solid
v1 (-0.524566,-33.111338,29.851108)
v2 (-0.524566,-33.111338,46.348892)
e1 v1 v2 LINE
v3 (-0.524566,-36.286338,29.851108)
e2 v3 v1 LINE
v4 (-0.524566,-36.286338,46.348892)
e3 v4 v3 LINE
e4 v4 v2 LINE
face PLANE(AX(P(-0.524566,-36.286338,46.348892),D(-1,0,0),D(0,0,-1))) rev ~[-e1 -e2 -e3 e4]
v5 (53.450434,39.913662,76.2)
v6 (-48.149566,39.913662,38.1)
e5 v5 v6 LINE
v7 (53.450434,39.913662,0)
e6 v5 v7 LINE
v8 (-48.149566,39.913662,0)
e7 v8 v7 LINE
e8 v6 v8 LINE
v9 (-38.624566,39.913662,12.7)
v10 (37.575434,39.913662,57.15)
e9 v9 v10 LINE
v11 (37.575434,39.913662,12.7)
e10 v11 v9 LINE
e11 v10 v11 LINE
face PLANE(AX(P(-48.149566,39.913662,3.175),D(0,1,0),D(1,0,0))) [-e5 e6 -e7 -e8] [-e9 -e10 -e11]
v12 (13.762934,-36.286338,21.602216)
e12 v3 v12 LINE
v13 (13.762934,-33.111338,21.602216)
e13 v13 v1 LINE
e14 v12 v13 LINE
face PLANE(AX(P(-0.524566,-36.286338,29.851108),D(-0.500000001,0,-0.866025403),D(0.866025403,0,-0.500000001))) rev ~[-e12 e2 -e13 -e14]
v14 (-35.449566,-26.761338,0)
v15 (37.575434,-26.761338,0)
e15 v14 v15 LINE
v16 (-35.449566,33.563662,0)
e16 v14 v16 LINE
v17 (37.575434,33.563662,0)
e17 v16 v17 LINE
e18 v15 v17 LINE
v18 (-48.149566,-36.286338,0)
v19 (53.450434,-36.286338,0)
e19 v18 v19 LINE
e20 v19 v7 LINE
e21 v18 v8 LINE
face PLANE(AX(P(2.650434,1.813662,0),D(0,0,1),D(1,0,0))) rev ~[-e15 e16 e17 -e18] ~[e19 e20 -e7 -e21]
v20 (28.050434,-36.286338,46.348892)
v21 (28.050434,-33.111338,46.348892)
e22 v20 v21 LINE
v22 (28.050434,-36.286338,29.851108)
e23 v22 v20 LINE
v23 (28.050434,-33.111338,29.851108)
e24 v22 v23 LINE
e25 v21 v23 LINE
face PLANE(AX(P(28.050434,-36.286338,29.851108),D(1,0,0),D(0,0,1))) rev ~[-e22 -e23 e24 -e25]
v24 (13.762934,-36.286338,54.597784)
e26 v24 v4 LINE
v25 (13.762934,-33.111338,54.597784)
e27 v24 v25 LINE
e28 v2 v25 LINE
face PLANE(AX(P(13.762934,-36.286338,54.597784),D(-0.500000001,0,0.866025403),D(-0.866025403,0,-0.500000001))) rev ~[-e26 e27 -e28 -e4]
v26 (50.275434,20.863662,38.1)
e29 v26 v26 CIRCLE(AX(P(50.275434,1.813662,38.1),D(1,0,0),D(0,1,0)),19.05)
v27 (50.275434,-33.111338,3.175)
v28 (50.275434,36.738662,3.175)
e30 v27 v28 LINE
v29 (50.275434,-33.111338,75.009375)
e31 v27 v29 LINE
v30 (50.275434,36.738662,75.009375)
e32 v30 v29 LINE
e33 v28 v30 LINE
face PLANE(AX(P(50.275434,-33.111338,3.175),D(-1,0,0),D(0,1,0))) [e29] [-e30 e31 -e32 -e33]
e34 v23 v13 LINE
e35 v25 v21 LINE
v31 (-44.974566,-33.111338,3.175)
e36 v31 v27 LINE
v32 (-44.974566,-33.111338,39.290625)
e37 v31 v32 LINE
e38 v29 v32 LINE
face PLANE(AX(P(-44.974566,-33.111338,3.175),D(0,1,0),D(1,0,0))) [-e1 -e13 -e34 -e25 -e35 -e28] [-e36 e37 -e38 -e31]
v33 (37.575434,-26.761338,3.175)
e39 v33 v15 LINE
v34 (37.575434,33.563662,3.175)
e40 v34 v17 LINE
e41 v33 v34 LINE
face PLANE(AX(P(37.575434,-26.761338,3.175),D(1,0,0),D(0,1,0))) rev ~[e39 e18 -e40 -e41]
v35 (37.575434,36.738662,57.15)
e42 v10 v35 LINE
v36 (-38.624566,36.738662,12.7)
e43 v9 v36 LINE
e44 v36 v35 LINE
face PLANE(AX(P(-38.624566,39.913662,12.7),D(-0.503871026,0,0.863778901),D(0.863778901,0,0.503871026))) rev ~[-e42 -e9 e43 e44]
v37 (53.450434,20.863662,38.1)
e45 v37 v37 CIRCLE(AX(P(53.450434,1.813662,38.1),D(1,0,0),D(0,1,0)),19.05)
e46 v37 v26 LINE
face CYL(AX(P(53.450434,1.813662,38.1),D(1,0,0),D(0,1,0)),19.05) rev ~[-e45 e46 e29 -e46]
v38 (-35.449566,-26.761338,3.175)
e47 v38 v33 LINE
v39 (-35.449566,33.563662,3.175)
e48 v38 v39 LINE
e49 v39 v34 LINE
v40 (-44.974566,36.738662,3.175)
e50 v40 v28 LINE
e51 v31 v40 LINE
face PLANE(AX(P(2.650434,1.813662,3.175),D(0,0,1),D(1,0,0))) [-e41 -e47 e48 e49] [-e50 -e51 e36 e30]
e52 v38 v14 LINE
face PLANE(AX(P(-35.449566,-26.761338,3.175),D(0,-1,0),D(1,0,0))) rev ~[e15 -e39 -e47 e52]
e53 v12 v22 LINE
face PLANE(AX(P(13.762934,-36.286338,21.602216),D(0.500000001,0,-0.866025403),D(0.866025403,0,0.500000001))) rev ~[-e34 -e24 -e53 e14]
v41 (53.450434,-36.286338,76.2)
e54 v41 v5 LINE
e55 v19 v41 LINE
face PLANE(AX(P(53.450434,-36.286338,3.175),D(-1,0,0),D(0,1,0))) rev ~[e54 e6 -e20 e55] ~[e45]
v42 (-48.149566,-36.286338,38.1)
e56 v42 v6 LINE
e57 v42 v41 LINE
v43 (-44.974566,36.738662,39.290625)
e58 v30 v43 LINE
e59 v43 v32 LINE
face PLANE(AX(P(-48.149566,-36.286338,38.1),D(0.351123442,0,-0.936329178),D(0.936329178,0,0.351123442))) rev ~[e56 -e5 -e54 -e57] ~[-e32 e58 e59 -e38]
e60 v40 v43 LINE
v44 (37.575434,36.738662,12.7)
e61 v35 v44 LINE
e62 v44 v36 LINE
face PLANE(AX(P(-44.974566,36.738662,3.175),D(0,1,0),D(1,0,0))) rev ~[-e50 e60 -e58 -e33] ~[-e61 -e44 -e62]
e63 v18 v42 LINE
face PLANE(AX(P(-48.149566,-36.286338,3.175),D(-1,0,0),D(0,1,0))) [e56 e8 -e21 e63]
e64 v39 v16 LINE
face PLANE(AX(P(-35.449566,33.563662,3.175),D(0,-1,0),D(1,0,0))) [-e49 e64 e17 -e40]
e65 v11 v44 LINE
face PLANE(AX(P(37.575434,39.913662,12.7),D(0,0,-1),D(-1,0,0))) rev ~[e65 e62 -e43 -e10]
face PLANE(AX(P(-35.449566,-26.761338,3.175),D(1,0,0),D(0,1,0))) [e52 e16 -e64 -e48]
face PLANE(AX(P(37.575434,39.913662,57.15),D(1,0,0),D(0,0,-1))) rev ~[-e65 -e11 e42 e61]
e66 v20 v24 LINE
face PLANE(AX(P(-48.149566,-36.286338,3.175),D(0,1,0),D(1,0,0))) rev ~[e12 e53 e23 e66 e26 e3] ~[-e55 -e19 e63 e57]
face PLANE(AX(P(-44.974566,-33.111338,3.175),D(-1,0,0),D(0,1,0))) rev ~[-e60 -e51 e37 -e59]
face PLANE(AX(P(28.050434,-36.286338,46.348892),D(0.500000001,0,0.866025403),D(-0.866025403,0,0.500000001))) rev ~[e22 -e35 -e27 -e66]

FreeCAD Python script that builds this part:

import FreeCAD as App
import Part
import Sketcher
from FreeCAD import Vector
Q = App.Units.Quantity


def add_polygon(sketch, points):
    """Adds a closed chain of lines whose ends are joined by coincident constraints."""
    first, n = sketch.GeometryCount, len(points)
    for a, b in zip(points, points[1:] + points[:1]):
        sketch.addGeometry(Part.LineSegment(App.Vector(*a, 0), App.Vector(*b, 0)), False)
    for i in range(n):
        sketch.addConstraint(Sketcher.Constraint("Coincident", first + i, 2, first + (i + 1) % n, 1))

doc = App.newDocument("Part")
params = doc.addObject("Spreadsheet::Sheet", "Params")
for row, (alias, value) in enumerate([
    ("sketch1_width", "4 in"),
    ("sketch1_height", "3 in"),
    ("pad1_length", "0.125 in"),
    ("sketch2_width", "4 in"),
    ("sketch2_height", "3 in"),
    ("sketch2_width2", "3.75 in"),
    ("sketch2_height2", "2.75 in"),
    ("pad2_length", "2.875 in"),
    ("sketch3_width", "4 in"),
    ("sketch3_height", "1.5 in"),
    ("sketch4_diameter", "1.5 in"),
    ("pocket2_length", "1 in"),
    ("sketch5_width", "2.875 in"),
    ("sketch5_height", "2.375 in"),
    ("pocket4_length", "1 in"),
    ("sketch7_width", "3 in"),
    ("sketch7_height", "1.75 in"),
    ("pocket5_length", "1 in"),
], start=1):
    params.set(f"A{row}", alias)
    params.set(f"B{row}", "=" + value)
    params.setAlias(f"B{row}", alias)

body = doc.addObject("PartDesign::Body", "Body")

sketch1 = doc.addObject("Sketcher::SketchObject", "Sketch")
body.addObject(sketch1)
sketch1.AttachmentSupport = (doc.XY_Plane, [""])
sketch1.MapMode = "FlatFace"
add_polygon(sketch1, [(-48, 40), (-48, -36), (53, -36), (53, 40)])
sketch1.addConstraint(Sketcher.Constraint("Vertical", 0))
sketch1.addConstraint(Sketcher.Constraint("Horizontal", 1))
sketch1.addConstraint(Sketcher.Constraint("Vertical", 2))
sketch1.addConstraint(Sketcher.Constraint("Horizontal", 3))
sketch1.addConstraint(Sketcher.Constraint("DistanceX", 1, 1, 1, 2, Q("4 in")))
sketch1.addConstraint(Sketcher.Constraint("DistanceY", 0, 2, 0, 1, Q("3 in")))
sketch1.addConstraint(Sketcher.Constraint("DistanceX", 0, 2, -1, 1, Q("48.149566 mm")))
sketch1.addConstraint(Sketcher.Constraint("DistanceY", 0, 2, -1, 1, Q("36.286338 mm")))
sketch1.setExpression("Constraints[8]", "Params.sketch1_width")
sketch1.setExpression("Constraints[9]", "Params.sketch1_height")
pad1 = doc.addObject("PartDesign::Pad", "Pad")
body.addObject(pad1)
pad1.Profile = sketch1
pad1.setExpression("Length", "Params.pad1_length")

sketch2 = doc.addObject("Sketcher::SketchObject", "Sketch001")
body.addObject(sketch2)
sketch2.AttachmentSupport = (doc.XY_Plane, [""])
sketch2.MapMode = "FlatFace"
sketch2.AttachmentOffset = App.Placement(Vector(0, 0, 0.125 * 25.4), App.Rotation())
add_polygon(sketch2, [(-48, 40), (-48, -36), (53, -36), (53, 40)])
add_polygon(sketch2, [(50, -33), (-45, -33), (-45, 37), (50, 37)])
sketch2.addConstraint(Sketcher.Constraint("Vertical", 0))
sketch2.addConstraint(Sketcher.Constraint("Horizontal", 1))
sketch2.addConstraint(Sketcher.Constraint("Vertical", 2))
sketch2.addConstraint(Sketcher.Constraint("Horizontal", 3))
sketch2.addConstraint(Sketcher.Constraint("Horizontal", 4))
sketch2.addConstraint(Sketcher.Constraint("Vertical", 5))
sketch2.addConstraint(Sketcher.Constraint("Horizontal", 6))
sketch2.addConstraint(Sketcher.Constraint("Vertical", 7))
sketch2.addConstraint(Sketcher.Constraint("DistanceX", 1, 1, 1, 2, Q("4 in")))
sketch2.addConstraint(Sketcher.Constraint("DistanceY", 0, 2, 0, 1, Q("3 in")))
sketch2.addConstraint(Sketcher.Constraint("DistanceX", 4, 2, 4, 1, Q("3.75 in")))
sketch2.addConstraint(Sketcher.Constraint("DistanceY", 5, 1, 5, 2, Q("2.75 in")))
sketch2.addConstraint(Sketcher.Constraint("DistanceX", 0, 2, 4, 2, Q("0.125 in")))
sketch2.addConstraint(Sketcher.Constraint("DistanceY", 0, 2, 4, 2, Q("0.125 in")))
sketch2.addConstraint(Sketcher.Constraint("DistanceY", 4, 2, -1, 1, Q("33.111338 mm")))
sketch2.addConstraint(Sketcher.Constraint("DistanceX", 0, 2, -1, 1, Q("48.149566 mm")))
sketch2.setExpression("Constraints[16]", "Params.sketch2_width")
sketch2.setExpression("Constraints[17]", "Params.sketch2_height")
sketch2.setExpression("Constraints[18]", "Params.sketch2_width2")
sketch2.setExpression("Constraints[19]", "Params.sketch2_height2")
pad2 = doc.addObject("PartDesign::Pad", "Pad001")
body.addObject(pad2)
pad2.Profile = sketch2
pad2.setExpression("Length", "Params.pad2_length")

sketch3 = doc.addObject("Sketcher::SketchObject", "Sketch002")
body.addObject(sketch3)
sketch3.AttachmentSupport = (doc.XZ_Plane, [""])
sketch3.MapMode = "FlatFace"
sketch3.AttachmentOffset = App.Placement(Vector(0, 0, 36.286338), App.Rotation())
add_polygon(sketch3, [(-48, 76), (-48, 38), (53, 76)])
sketch3.addConstraint(Sketcher.Constraint("Vertical", 0))
sketch3.addConstraint(Sketcher.Constraint("Horizontal", 2))
sketch3.addConstraint(Sketcher.Constraint("DistanceX", 2, 2, 2, 1, Q("4 in")))
sketch3.addConstraint(Sketcher.Constraint("DistanceY", 0, 2, 0, 1, Q("1.5 in")))
sketch3.addConstraint(Sketcher.Constraint("DistanceY", -1, 1, 1, 2, Q("3 in")))
sketch3.addConstraint(Sketcher.Constraint("DistanceX", 0, 2, -1, 1, Q("48.149566 mm")))
sketch3.setExpression("Constraints[5]", "Params.sketch3_width")
sketch3.setExpression("Constraints[6]", "Params.sketch3_height")
pocket1 = doc.addObject("PartDesign::Pocket", "Pocket")
body.addObject(pocket1)
pocket1.Profile = sketch3
pocket1.Type = "ThroughAll"

sketch4 = doc.addObject("Sketcher::SketchObject", "Sketch003")
body.addObject(sketch4)
sketch4.AttachmentSupport = (doc.YZ_Plane, [""])
sketch4.MapMode = "FlatFace"
sketch4.AttachmentOffset = App.Placement(Vector(0, 0, 53.450434), App.Rotation())
sketch4.addGeometry(Part.Circle(Vector(2, 38, 0), Vector(0, 0, 1), 19), False)
sketch4.addConstraint(Sketcher.Constraint("Diameter", 0, Q("1.5 in")))
sketch4.addConstraint(Sketcher.Constraint("DistanceY", -1, 1, 0, 3, Q("1.5 in")))
sketch4.addConstraint(Sketcher.Constraint("DistanceX", -1, 1, 0, 3, Q("1.813662 mm")))
sketch4.setExpression("Constraints[0]", "Params.sketch4_diameter")
pocket2 = doc.addObject("PartDesign::Pocket", "Pocket001")
body.addObject(pocket2)
pocket2.Profile = sketch4
pocket2.setExpression("Length", "Params.pocket2_length")

sketch5 = doc.addObject("Sketcher::SketchObject", "Sketch004")
body.addObject(sketch5)
sketch5.AttachmentSupport = (doc.XY_Plane, [""])
sketch5.MapMode = "FlatFace"
sketch5.AttachmentOffset = App.Placement(Vector(0, 0, 0.125 * 25.4), App.Rotation())
add_polygon(sketch5, [(-35, 34), (-35, -27), (38, -27), (38, 34)])
sketch5.addConstraint(Sketcher.Constraint("Vertical", 0))
sketch5.addConstraint(Sketcher.Constraint("Horizontal", 1))
sketch5.addConstraint(Sketcher.Constraint("Vertical", 2))
sketch5.addConstraint(Sketcher.Constraint("Horizontal", 3))
sketch5.addConstraint(Sketcher.Constraint("DistanceX", 1, 1, 1, 2, Q("2.875 in")))
sketch5.addConstraint(Sketcher.Constraint("DistanceY", 0, 2, 0, 1, Q("2.375 in")))
sketch5.addConstraint(Sketcher.Constraint("DistanceX", 0, 2, -1, 1, Q("35.449566 mm")))
sketch5.addConstraint(Sketcher.Constraint("DistanceY", 0, 2, -1, 1, Q("26.761338 mm")))
sketch5.setExpression("Constraints[8]", "Params.sketch5_width")
sketch5.setExpression("Constraints[9]", "Params.sketch5_height")
pocket3 = doc.addObject("PartDesign::Pocket", "Pocket002")
body.addObject(pocket3)
pocket3.Profile = sketch5
pocket3.Type = "ThroughAll"

sketch6 = doc.addObject("Sketcher::SketchObject", "Sketch005")
body.addObject(sketch6)
sketch6.AttachmentSupport = (doc.XZ_Plane, [""])
sketch6.MapMode = "FlatFace"
sketch6.AttachmentOffset = App.Placement(Vector(0, 0, 36.286338), App.Rotation())
add_polygon(sketch6, [(28, 30), (28, 46), (14, 55), (-1, 46), (-1, 30), (14, 22)])
sketch6.addConstraint(Sketcher.Constraint("Vertical", 0))
sketch6.addConstraint(Sketcher.Constraint("Vertical", 3))
sketch6.addConstraint(Sketcher.Constraint("Parallel", 1, 4))
sketch6.addConstraint(Sketcher.Constraint("Parallel", 2, 5))
sketch6.addConstraint(Sketcher.Constraint("Horizontal", 0, 2, 2, 2))
sketch6.addConstraint(Sketcher.Constraint("Horizontal", 3, 2, 5, 2))
sketch6.addConstraint(Sketcher.Constraint("Vertical", 1, 2, 4, 2))
sketch6.addConstraint(Sketcher.Constraint("Angle", 1, Q("150 deg")))
sketch6.addConstraint(Sketcher.Constraint("DistanceX", 1, 2, 0, 2, Q("0.5625 in")))
sketch6.addConstraint(Sketcher.Constraint("DistanceY", 0, 1, 0, 2, Q("16.497784 mm")))
sketch6.addConstraint(Sketcher.Constraint("DistanceY", -1, 1, 3, 2, Q("29.851108 mm")))
sketch6.addConstraint(Sketcher.Constraint("DistanceX", -1, 1, 0, 2, Q("28.050434 mm")))
pocket4 = doc.addObject("PartDesign::Pocket", "Pocket003")
body.addObject(pocket4)
pocket4.Profile = sketch6
pocket4.setExpression("Length", "Params.pocket4_length")

sketch7 = doc.addObject("Sketcher::SketchObject", "Sketch006")
body.addObject(sketch7)
sketch7.AttachmentSupport = (doc.XZ_Plane, [""])
sketch7.MapMode = "FlatFace"
sketch7.AttachmentOffset = App.Placement(Vector(0, 0, -39.913662), App.Rotation())
add_polygon(sketch7, [(-39, 13), (38, 57), (38, 13)])
sketch7.addConstraint(Sketcher.Constraint("Vertical", 1))
sketch7.addConstraint(Sketcher.Constraint("Horizontal", 2))
sketch7.addConstraint(Sketcher.Constraint("DistanceX", 2, 2, 2, 1, Q("3 in")))
sketch7.addConstraint(Sketcher.Constraint("DistanceY", 1, 2, 1, 1, Q("1.75 in")))
sketch7.addConstraint(Sketcher.Constraint("DistanceY", -1, 1, 1, 2, Q("0.5 in")))
sketch7.addConstraint(Sketcher.Constraint("DistanceX", -1, 1, 0, 2, Q("37.575434 mm")))
sketch7.setExpression("Constraints[5]", "Params.sketch7_width")
sketch7.setExpression("Constraints[6]", "Params.sketch7_height")
pocket5 = doc.addObject("PartDesign::Pocket", "Pocket004")
body.addObject(pocket5)
pocket5.Profile = sketch7
pocket5.setExpression("Length", "Params.pocket5_length")
pocket5.Reversed = True

doc.recompute()
